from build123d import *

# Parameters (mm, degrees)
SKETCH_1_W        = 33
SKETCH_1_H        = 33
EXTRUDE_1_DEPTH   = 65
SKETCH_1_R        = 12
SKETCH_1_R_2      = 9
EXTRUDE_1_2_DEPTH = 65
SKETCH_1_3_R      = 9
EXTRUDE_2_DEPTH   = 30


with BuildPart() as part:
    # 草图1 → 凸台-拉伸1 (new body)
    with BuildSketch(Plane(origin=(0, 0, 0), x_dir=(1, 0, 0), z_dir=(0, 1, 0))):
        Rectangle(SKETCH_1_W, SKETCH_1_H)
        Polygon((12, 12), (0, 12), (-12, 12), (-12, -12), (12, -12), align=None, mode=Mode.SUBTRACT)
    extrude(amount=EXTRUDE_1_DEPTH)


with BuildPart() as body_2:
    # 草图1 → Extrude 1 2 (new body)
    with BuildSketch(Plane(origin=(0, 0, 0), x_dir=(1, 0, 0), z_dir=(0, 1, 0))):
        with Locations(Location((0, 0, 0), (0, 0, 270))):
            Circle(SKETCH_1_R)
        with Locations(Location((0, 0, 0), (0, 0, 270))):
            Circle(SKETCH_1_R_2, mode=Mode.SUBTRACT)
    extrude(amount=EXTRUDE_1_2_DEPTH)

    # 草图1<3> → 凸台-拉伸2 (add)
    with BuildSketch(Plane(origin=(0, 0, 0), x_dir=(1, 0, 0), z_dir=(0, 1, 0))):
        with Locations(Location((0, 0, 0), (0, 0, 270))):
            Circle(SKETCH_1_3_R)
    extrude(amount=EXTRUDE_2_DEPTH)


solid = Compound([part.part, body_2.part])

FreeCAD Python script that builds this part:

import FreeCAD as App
import Part
import Sketcher
from FreeCAD import Vector
Q = App.Units.Quantity


def add_polygon(sketch, points):
    """Adds a closed chain of lines whose ends are joined by coincident constraints."""
    first, n = sketch.GeometryCount, len(points)
    for a, b in zip(points, points[1:] + points[:1]):
        sketch.addGeometry(Part.LineSegment(App.Vector(*a, 0), App.Vector(*b, 0)), False)
    for i in range(n):
        sketch.addConstraint(Sketcher.Constraint("Coincident", first + i, 2, first + (i + 1) % n, 1))

doc = App.newDocument("Part")
body = doc.addObject("PartDesign::Body", "Body")

# Sketch on XZ plane
sketch1 = body.newObject("Sketcher::SketchObject", "Sketch")
sketch1.AttachmentSupport = (doc.getObject("XZ_Plane"), [""])
sketch1.MapMode = "FlatFace"
add_polygon(sketch1, [(-16, -16), (-16, 16), (16, 16), (16, -16)])  # lines 0-3
add_polygon(sketch1, [(-12, -12), (12, -12), (12, 12), (-12, 12)])  # lines 4-7
sketch1.addConstraint([
    Sketcher.Constraint("Vertical", 0),
    Sketcher.Constraint("Horizontal", 1),
    Sketcher.Constraint("Vertical", 2),
    Sketcher.Constraint("Horizontal", 3),
    Sketcher.Constraint("Horizontal", 4),
    Sketcher.Constraint("Vertical", 5),
    Sketcher.Constraint("Horizontal", 6),
    Sketcher.Constraint("Vertical", 7),
    Sketcher.Constraint("Symmetric", 0, 2, 2, 2, -1, 1),
    Sketcher.Constraint("Symmetric", 4, 2, 6, 2, -1, 1),
    Sketcher.Constraint("Equal", 3, 0),
    Sketcher.Constraint("Equal", 6, 5),
    Sketcher.Constraint("DistanceX", 1, 1, 1, 2, Q("33 mm")),
    Sketcher.Constraint("DistanceX", 4, 1, 4, 2, Q("24 mm")),
])
pad1 = body.newObject("PartDesign::Pad", "Pad")
pad1.Profile = sketch1
pad1.Length = 65
pad1.Reversed = True
body2 = doc.addObject("PartDesign::Body", "Body001")

# Sketch on XZ plane
sketch2 = body2.newObject("Sketcher::SketchObject", "Sketch001")
sketch2.AttachmentSupport = (doc.getObject("XZ_Plane001"), [""])
sketch2.MapMode = "FlatFace"
sketch2.addGeometry([
    Part.Circle(Vector(0, 0, 0), Vector(0, 0, 1), 12),
    Part.Circle(Vector(0, 0, 0), Vector(0, 0, 1), 9),
], False)
sketch2.addConstraint([
    Sketcher.Constraint("Coincident", 0, 3, -1, 1),
    Sketcher.Constraint("Coincident", 1, 3, -1, 1),
    Sketcher.Constraint("Diameter", 0, Q("24 mm")),
    Sketcher.Constraint("Diameter", 1, Q("18 mm")),
])
pad2 = body2.newObject("PartDesign::Pad", "Pad001")
pad2.Profile = sketch2
pad2.Length = 65
pad2.Reversed = True

# Sketch on XZ plane
sketch3 = body2.newObject("Sketcher::SketchObject", "Sketch002")
sketch3.AttachmentSupport = (doc.getObject("XZ_Plane001"), [""])
sketch3.MapMode = "FlatFace"
sketch3.addGeometry(Part.Circle(Vector(0, 0, 0), Vector(0, 0, 1), 9), False)
sketch3.addConstraint([
    Sketcher.Constraint("Coincident", 0, 3, -1, 1),
    Sketcher.Constraint("Diameter", 0, Q("18 mm")),
])
pad3 = body2.newObject("PartDesign::Pad", "Pad002")
pad3.Profile = sketch3
pad3.Length = 30
pad3.Reversed = True

doc.recompute()
